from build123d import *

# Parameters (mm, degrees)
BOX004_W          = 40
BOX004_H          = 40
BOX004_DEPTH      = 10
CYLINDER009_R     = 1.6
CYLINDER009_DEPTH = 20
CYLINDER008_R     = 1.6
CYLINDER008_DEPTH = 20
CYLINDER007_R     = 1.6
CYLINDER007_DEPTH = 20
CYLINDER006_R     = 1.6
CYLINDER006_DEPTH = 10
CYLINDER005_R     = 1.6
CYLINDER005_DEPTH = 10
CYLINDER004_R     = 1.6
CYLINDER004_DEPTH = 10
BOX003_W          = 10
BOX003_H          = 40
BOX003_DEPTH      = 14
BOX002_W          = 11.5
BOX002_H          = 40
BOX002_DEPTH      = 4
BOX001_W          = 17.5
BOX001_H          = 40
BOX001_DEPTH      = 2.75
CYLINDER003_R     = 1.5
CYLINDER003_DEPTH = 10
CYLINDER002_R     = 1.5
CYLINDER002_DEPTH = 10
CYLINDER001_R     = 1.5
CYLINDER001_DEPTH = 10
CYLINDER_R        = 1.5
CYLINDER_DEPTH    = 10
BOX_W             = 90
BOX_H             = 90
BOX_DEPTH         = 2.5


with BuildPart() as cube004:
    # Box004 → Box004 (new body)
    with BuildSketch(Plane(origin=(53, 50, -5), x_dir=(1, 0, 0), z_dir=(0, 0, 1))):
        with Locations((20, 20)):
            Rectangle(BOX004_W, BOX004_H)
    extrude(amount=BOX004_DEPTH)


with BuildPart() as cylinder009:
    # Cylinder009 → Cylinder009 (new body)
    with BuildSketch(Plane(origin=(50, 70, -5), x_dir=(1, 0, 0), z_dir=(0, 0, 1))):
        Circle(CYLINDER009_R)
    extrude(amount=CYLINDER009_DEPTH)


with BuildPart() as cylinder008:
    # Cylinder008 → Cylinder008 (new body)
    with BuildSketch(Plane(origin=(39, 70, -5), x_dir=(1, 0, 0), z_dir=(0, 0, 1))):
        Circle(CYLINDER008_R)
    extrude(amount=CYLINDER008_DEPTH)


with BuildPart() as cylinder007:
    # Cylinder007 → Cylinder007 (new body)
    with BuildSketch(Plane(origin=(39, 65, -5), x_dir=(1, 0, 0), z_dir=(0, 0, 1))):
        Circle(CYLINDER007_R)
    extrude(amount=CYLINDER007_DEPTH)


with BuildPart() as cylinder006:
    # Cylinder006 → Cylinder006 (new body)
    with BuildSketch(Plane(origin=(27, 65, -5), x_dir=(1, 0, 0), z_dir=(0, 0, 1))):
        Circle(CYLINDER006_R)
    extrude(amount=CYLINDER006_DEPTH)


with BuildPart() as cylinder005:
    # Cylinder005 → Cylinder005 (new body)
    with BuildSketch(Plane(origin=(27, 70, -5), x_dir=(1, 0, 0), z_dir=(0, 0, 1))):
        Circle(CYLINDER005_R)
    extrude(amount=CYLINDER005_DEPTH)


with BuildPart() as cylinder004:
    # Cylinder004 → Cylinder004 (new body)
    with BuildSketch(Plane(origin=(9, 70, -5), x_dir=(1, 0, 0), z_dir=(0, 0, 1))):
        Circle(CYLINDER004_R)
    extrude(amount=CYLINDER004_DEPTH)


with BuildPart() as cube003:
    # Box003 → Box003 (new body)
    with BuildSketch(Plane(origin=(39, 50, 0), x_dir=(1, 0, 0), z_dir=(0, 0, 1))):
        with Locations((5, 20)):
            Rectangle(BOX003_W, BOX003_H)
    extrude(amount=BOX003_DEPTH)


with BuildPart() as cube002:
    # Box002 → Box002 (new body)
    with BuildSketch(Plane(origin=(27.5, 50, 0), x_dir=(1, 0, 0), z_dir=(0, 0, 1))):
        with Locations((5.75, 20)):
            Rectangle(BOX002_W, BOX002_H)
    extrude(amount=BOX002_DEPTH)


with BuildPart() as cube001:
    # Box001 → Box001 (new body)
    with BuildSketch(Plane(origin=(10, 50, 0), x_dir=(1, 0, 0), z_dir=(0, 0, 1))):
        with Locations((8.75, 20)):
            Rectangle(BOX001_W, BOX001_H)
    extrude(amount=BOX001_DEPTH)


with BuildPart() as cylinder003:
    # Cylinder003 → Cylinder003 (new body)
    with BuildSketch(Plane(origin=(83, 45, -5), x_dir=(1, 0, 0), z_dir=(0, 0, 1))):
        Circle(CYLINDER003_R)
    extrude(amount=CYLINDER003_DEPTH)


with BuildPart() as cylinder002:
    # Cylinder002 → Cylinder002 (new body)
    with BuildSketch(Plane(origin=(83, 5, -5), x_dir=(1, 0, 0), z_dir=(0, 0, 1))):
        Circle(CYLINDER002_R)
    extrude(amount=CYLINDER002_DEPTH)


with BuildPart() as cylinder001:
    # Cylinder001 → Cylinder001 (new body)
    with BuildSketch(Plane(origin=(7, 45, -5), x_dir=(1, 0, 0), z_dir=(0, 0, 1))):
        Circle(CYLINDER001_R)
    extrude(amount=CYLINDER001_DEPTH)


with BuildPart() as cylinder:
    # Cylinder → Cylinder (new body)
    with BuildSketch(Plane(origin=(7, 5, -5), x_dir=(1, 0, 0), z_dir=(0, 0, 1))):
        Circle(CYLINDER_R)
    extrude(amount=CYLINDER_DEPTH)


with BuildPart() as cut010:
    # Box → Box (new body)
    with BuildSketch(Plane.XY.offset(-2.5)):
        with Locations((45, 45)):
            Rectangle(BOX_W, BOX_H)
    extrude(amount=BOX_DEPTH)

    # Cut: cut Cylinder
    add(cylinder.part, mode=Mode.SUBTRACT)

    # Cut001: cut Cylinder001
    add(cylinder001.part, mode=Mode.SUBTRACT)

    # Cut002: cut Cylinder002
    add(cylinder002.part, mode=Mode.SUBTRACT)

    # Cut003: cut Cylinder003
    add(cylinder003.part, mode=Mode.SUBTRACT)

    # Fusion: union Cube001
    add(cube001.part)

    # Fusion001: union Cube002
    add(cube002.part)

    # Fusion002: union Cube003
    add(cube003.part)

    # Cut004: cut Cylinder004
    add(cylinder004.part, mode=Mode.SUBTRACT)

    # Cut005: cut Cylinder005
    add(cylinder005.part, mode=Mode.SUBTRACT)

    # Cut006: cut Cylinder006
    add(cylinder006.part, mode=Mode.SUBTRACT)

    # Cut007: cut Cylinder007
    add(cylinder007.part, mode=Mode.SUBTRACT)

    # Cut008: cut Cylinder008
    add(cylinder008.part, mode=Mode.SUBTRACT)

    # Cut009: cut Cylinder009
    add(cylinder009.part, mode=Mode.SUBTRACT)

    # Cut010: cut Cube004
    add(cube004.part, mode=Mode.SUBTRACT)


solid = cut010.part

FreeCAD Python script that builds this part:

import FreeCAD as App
import Part
import Sketcher

V = App.Vector
Q = App.Units.Quantity


def add_polygon(sketch, points):
    """Adds a closed chain of lines whose ends are joined by coincident constraints."""
    first, n = sketch.GeometryCount, len(points)
    for a, b in zip(points, points[1:] + points[:1]):
        sketch.addGeometry(Part.LineSegment(App.Vector(*a, 0), App.Vector(*b, 0)), False)
    for i in range(n):
        sketch.addConstraint(Sketcher.Constraint("Coincident", first + i, 2, first + (i + 1) % n, 1))

doc = App.newDocument("Part")
body = doc.addObject("PartDesign::Body", "Body")

# Sketch on XY plane
sketch1 = body.newObject("Sketcher::SketchObject", "Sketch")
sketch1.AttachmentSupport = (doc.getObject("XY_Plane"), [""])
sketch1.MapMode = "FlatFace"
sketch1.AttachmentOffset = App.Placement(V(0, 0, -5), App.Rotation())
add_polygon(sketch1, [(53, 90), (53, 50), (93, 50), (93, 90)])  # lines 0-3
sketch1.addConstraint([
    Sketcher.Constraint("Vertical", 0),
    Sketcher.Constraint("Horizontal", 1),
    Sketcher.Constraint("Vertical", 2),
    Sketcher.Constraint("Horizontal", 3),
    Sketcher.Constraint("Equal", 3, 0),
    Sketcher.Constraint("DistanceX", 1, 1, 1, 2, Q("40 mm")),
    Sketcher.Constraint("DistanceX", -1, 1, 0, 2, Q("53 mm")),
    Sketcher.Constraint("DistanceY", -1, 1, 0, 2, Q("50 mm")),
])
pad1 = body.newObject("PartDesign::Pad", "Pad")
pad1.Profile = sketch1
pad1.Length = 10
body2 = doc.addObject("PartDesign::Body", "Body001")

# Sketch on XY plane
sketch2 = body2.newObject("Sketcher::SketchObject", "Sketch001")
sketch2.AttachmentSupport = (doc.getObject("XY_Plane001"), [""])
sketch2.MapMode = "FlatFace"
sketch2.AttachmentOffset = App.Placement(V(0, 0, -5), App.Rotation())
sketch2.addGeometry(Part.Circle(V(50, 70, 0), V(0, 0, 1), 1.6), False)
sketch2.addConstraint([
    Sketcher.Constraint("Diameter", 0, Q("3.2 mm")),
    Sketcher.Constraint("DistanceX", -1, 1, 0, 3, Q("50 mm")),
    Sketcher.Constraint("DistanceY", -1, 1, 0, 3, Q("70 mm")),
])
pad2 = body2.newObject("PartDesign::Pad", "Pad001")
pad2.Profile = sketch2
pad2.Length = 20
body3 = doc.addObject("PartDesign::Body", "Body002")

# Sketch on XY plane
sketch3 = body3.newObject("Sketcher::SketchObject", "Sketch002")
sketch3.AttachmentSupport = (doc.getObject("XY_Plane002"), [""])
sketch3.MapMode = "FlatFace"
sketch3.AttachmentOffset = App.Placement(V(0, 0, -5), App.Rotation())
sketch3.addGeometry(Part.Circle(V(39, 70, 0), V(0, 0, 1), 1.6), False)
sketch3.addConstraint([
    Sketcher.Constraint("Diameter", 0, Q("3.2 mm")),
    Sketcher.Constraint("DistanceX", -1, 1, 0, 3, Q("39 mm")),
    Sketcher.Constraint("DistanceY", -1, 1, 0, 3, Q("70 mm")),
])
pad3 = body3.newObject("PartDesign::Pad", "Pad002")
pad3.Profile = sketch3
pad3.Length = 20
body4 = doc.addObject("PartDesign::Body", "Body003")

# Sketch on XY plane
sketch4 = body4.newObject("Sketcher::SketchObject", "Sketch003")
sketch4.AttachmentSupport = (doc.getObject("XY_Plane003"), [""])
sketch4.MapMode = "FlatFace"
sketch4.AttachmentOffset = App.Placement(V(0, 0, -5), App.Rotation())
sketch4.addGeometry(Part.Circle(V(39, 65, 0), V(0, 0, 1), 1.6), False)
sketch4.addConstraint([
    Sketcher.Constraint("Diameter", 0, Q("3.2 mm")),
    Sketcher.Constraint("DistanceX", -1, 1, 0, 3, Q("39 mm")),
    Sketcher.Constraint("DistanceY", -1, 1, 0, 3, Q("65 mm")),
])
pad4 = body4.newObject("PartDesign::Pad", "Pad003")
pad4.Profile = sketch4
pad4.Length = 20
body5 = doc.addObject("PartDesign::Body", "Body004")

# Sketch on XY plane
sketch5 = body5.newObject("Sketcher::SketchObject", "Sketch004")
sketch5.AttachmentSupport = (doc.getObject("XY_Plane004"), [""])
sketch5.MapMode = "FlatFace"
sketch5.AttachmentOffset = App.Placement(V(0, 0, -5), App.Rotation())
sketch5.addGeometry(Part.Circle(V(27, 65, 0), V(0, 0, 1), 1.6), False)
sketch5.addConstraint([
    Sketcher.Constraint("Diameter", 0, Q("3.2 mm")),
    Sketcher.Constraint("DistanceX", -1, 1, 0, 3, Q("27 mm")),
    Sketcher.Constraint("DistanceY", -1, 1, 0, 3, Q("65 mm")),
])
pad5 = body5.newObject("PartDesign::Pad", "Pad004")
pad5.Profile = sketch5
pad5.Length = 10
body6 = doc.addObject("PartDesign::Body", "Body005")

# Sketch on XY plane
sketch6 = body6.newObject("Sketcher::SketchObject", "Sketch005")
sketch6.AttachmentSupport = (doc.getObject("XY_Plane005"), [""])
sketch6.MapMode = "FlatFace"
sketch6.AttachmentOffset = App.Placement(V(0, 0, -5), App.Rotation())
sketch6.addGeometry(Part.Circle(V(27, 70, 0), V(0, 0, 1), 1.6), False)
sketch6.addConstraint([
    Sketcher.Constraint("Diameter", 0, Q("3.2 mm")),
    Sketcher.Constraint("DistanceX", -1, 1, 0, 3, Q("27 mm")),
    Sketcher.Constraint("DistanceY", -1, 1, 0, 3, Q("70 mm")),
])
pad6 = body6.newObject("PartDesign::Pad", "Pad005")
pad6.Profile = sketch6
pad6.Length = 10
body7 = doc.addObject("PartDesign::Body", "Body006")

# Sketch on XY plane
sketch7 = body7.newObject("Sketcher::SketchObject", "Sketch006")
sketch7.AttachmentSupport = (doc.getObject("XY_Plane006"), [""])
sketch7.MapMode = "FlatFace"
sketch7.AttachmentOffset = App.Placement(V(0, 0, -5), App.Rotation())
sketch7.addGeometry(Part.Circle(V(9, 70, 0), V(0, 0, 1), 1.6), False)
sketch7.addConstraint([
    Sketcher.Constraint("Diameter", 0, Q("3.2 mm")),
    Sketcher.Constraint("DistanceX", -1, 1, 0, 3, Q("9 mm")),
    Sketcher.Constraint("DistanceY", -1, 1, 0, 3, Q("70 mm")),
])
pad7 = body7.newObject("PartDesign::Pad", "Pad006")
pad7.Profile = sketch7
pad7.Length = 10
body8 = doc.addObject("PartDesign::Body", "Body007")

# Sketch on XY plane
sketch8 = body8.newObject("Sketcher::SketchObject", "Sketch007")
sketch8.AttachmentSupport = (doc.getObject("XY_Plane007"), [""])
sketch8.MapMode = "FlatFace"
add_polygon(sketch8, [(39, 90), (39, 50), (49, 50), (49, 90)])  # lines 0-3
sketch8.addConstraint([
    Sketcher.Constraint("Vertical", 0),
    Sketcher.Constraint("Horizontal", 1),
    Sketcher.Constraint("Vertical", 2),
    Sketcher.Constraint("Horizontal", 3),
    Sketcher.Constraint("DistanceX", 1, 1, 1, 2, Q("10 mm")),
    Sketcher.Constraint("DistanceY", 0, 2, 0, 1, Q("40 mm")),
    Sketcher.Constraint("DistanceX", -1, 1, 0, 2, Q("39 mm")),
    Sketcher.Constraint("DistanceY", -1, 1, 0, 2, Q("50 mm")),
])
pad8 = body8.newObject("PartDesign::Pad", "Pad007")
pad8.Profile = sketch8
pad8.Length = 14
body9 = doc.addObject("PartDesign::Body", "Body008")

# Sketch on XY plane
sketch9 = body9.newObject("Sketcher::SketchObject", "Sketch008")
sketch9.AttachmentSupport = (doc.getObject("XY_Plane008"), [""])
sketch9.MapMode = "FlatFace"
add_polygon(sketch9, [(27.5, 90), (27.5, 50), (39, 50), (39, 90)])  # lines 0-3
sketch9.addConstraint([
    Sketcher.Constraint("Vertical", 0),
    Sketcher.Constraint("Horizontal", 1),
    Sketcher.Constraint("Vertical", 2),
    Sketcher.Constraint("Horizontal", 3),
    Sketcher.Constraint("DistanceY", 0, 2, 0, 1, Q("40 mm")),
    Sketcher.Constraint("DistanceX", 1, 1, 1, 2, Q("11.5 mm")),
    Sketcher.Constraint("DistanceY", -1, 1, 0, 2, Q("50 mm")),
    Sketcher.Constraint("DistanceX", -1, 1, 1, 2, Q("39 mm")),
])
pad9 = body9.newObject("PartDesign::Pad", "Pad008")
pad9.Profile = sketch9
pad9.Length = 4
body10 = doc.addObject("PartDesign::Body", "Body009")

# Sketch on XY plane
sketch10 = body10.newObject("Sketcher::SketchObject", "Sketch009")
sketch10.AttachmentSupport = (doc.getObject("XY_Plane009"), [""])
sketch10.MapMode = "FlatFace"
add_polygon(sketch10, [(10, 90), (10, 50), (27.5, 50), (27.5, 90)])  # lines 0-3
sketch10.addConstraint([
    Sketcher.Constraint("Vertical", 0),
    Sketcher.Constraint("Horizontal", 1),
    Sketcher.Constraint("Vertical", 2),
    Sketcher.Constraint("Horizontal", 3),
    Sketcher.Constraint("DistanceY", 0, 2, 0, 1, Q("40 mm")),
    Sketcher.Constraint("DistanceX", 1, 1, 1, 2, Q("17.5 mm")),
    Sketcher.Constraint("DistanceX", -1, 1, 0, 2, Q("10 mm")),
    Sketcher.Constraint("DistanceY", -1, 1, 0, 2, Q("50 mm")),
])
pad10 = body10.newObject("PartDesign::Pad", "Pad009")
pad10.Profile = sketch10
pad10.Length = 2.75
body11 = doc.addObject("PartDesign::Body", "Body010")

# Sketch on XY plane
sketch11 = body11.newObject("Sketcher::SketchObject", "Sketch010")
sketch11.AttachmentSupport = (doc.getObject("XY_Plane010"), [""])
sketch11.MapMode = "FlatFace"
sketch11.AttachmentOffset = App.Placement(V(0, 0, -5), App.Rotation())
sketch11.addGeometry(Part.Circle(V(83, 45, 0), V(0, 0, 1), 1.5), False)
sketch11.addConstraint([
    Sketcher.Constraint("Diameter", 0, Q("3 mm")),
    Sketcher.Constraint("DistanceX", -1, 1, 0, 3, Q("83 mm")),
    Sketcher.Constraint("DistanceY", -1, 1, 0, 3, Q("45 mm")),
])
pad11 = body11.newObject("PartDesign::Pad", "Pad010")
pad11.Profile = sketch11
pad11.Length = 10
body12 = doc.addObject("PartDesign::Body", "Body011")

# Sketch on XY plane
sketch12 = body12.newObject("Sketcher::SketchObject", "Sketch011")
sketch12.AttachmentSupport = (doc.getObject("XY_Plane011"), [""])
sketch12.MapMode = "FlatFace"
sketch12.AttachmentOffset = App.Placement(V(0, 0, -5), App.Rotation())
sketch12.addGeometry(Part.Circle(V(83, 5, 0), V(0, 0, 1), 1.5), False)
sketch12.addConstraint([
    Sketcher.Constraint("Diameter", 0, Q("3 mm")),
    Sketcher.Constraint("DistanceX", -1, 1, 0, 3, Q("83 mm")),
    Sketcher.Constraint("DistanceY", -1, 1, 0, 3, Q("5 mm")),
])
pad12 = body12.newObject("PartDesign::Pad", "Pad011")
pad12.Profile = sketch12
pad12.Length = 10
body13 = doc.addObject("PartDesign::Body", "Body012")

# Sketch on XY plane
sketch13 = body13.newObject("Sketcher::SketchObject", "Sketch012")
sketch13.AttachmentSupport = (doc.getObject("XY_Plane012"), [""])
sketch13.MapMode = "FlatFace"
sketch13.AttachmentOffset = App.Placement(V(0, 0, -5), App.Rotation())
sketch13.addGeometry(Part.Circle(V(7, 45, 0), V(0, 0, 1), 1.5), False)
sketch13.addConstraint([
    Sketcher.Constraint("Diameter", 0, Q("3 mm")),
    Sketcher.Constraint("DistanceX", -1, 1, 0, 3, Q("7 mm")),
    Sketcher.Constraint("DistanceY", -1, 1, 0, 3, Q("45 mm")),
])
pad13 = body13.newObject("PartDesign::Pad", "Pad012")
pad13.Profile = sketch13
pad13.Length = 10
body14 = doc.addObject("PartDesign::Body", "Body013")

# Sketch on XY plane
sketch14 = body14.newObject("Sketcher::SketchObject", "Sketch013")
sketch14.AttachmentSupport = (doc.getObject("XY_Plane013"), [""])
sketch14.MapMode = "FlatFace"
sketch14.AttachmentOffset = App.Placement(V(0, 0, -5), App.Rotation())
sketch14.addGeometry(Part.Circle(V(7, 5, 0), V(0, 0, 1), 1.5), False)
sketch14.addConstraint([
    Sketcher.Constraint("Diameter", 0, Q("3 mm")),
    Sketcher.Constraint("DistanceX", -1, 1, 0, 3, Q("7 mm")),
    Sketcher.Constraint("DistanceY", -1, 1, 0, 3, Q("5 mm")),
])
pad14 = body14.newObject("PartDesign::Pad", "Pad013")
pad14.Profile = sketch14
pad14.Length = 10
body15 = doc.addObject("PartDesign::Body", "Body014")

# Sketch on XY plane
sketch15 = body15.newObject("Sketcher::SketchObject", "Sketch014")
sketch15.AttachmentSupport = (doc.getObject("XY_Plane014"), [""])
sketch15.MapMode = "FlatFace"
sketch15.AttachmentOffset = App.Placement(V(0, 0, -2.5), App.Rotation())
add_polygon(sketch15, [(0, 90), (0, 0), (90, 0), (90, 90)])  # lines 0-3
sketch15.addConstraint([
    Sketcher.Constraint("Vertical", 0),
    Sketcher.Constraint("Horizontal", 1),
    Sketcher.Constraint("Vertical", 2),
    Sketcher.Constraint("Horizontal", 3),
    Sketcher.Constraint("Coincident", 0, 2, -1, 1),
    Sketcher.Constraint("Equal", 3, 0),
    Sketcher.Constraint("DistanceX", 1, 1, 1, 2, Q("90 mm")),
])
pad15 = body15.newObject("PartDesign::Pad", "Pad014")
pad15.Profile = sketch15
pad15.Length = 2.5
doc.recompute()

boolean = body15.newObject("PartDesign::Boolean", "Boolean")
boolean.Type = "Cut"
boolean.addObjects([body14])
doc.recompute()

boolean2 = body15.newObject("PartDesign::Boolean", "Boolean001")
boolean2.Type = "Cut"
boolean2.addObjects([body13])
doc.recompute()

boolean3 = body15.newObject("PartDesign::Boolean", "Boolean002")
boolean3.Type = "Cut"
boolean3.addObjects([body12])
doc.recompute()

boolean4 = body15.newObject("PartDesign::Boolean", "Boolean003")
boolean4.Type = "Cut"
boolean4.addObjects([body11])
doc.recompute()

boolean5 = body15.newObject("PartDesign::Boolean", "Boolean004")
boolean5.Type = "Fuse"
boolean5.addObjects([body10])
doc.recompute()

boolean6 = body15.newObject("PartDesign::Boolean", "Boolean005")
boolean6.Type = "Fuse"
boolean6.addObjects([body9])
doc.recompute()

boolean7 = body15.newObject("PartDesign::Boolean", "Boolean006")
boolean7.Type = "Fuse"
boolean7.addObjects([body8])
doc.recompute()

boolean8 = body15.newObject("PartDesign::Boolean", "Boolean007")
boolean8.Type = "Cut"
boolean8.addObjects([body7])
doc.recompute()

boolean9 = body15.newObject("PartDesign::Boolean", "Boolean008")
boolean9.Type = "Cut"
boolean9.addObjects([body6])
doc.recompute()

boolean10 = body15.newObject("PartDesign::Boolean", "Boolean009")
boolean10.Type = "Cut"
boolean10.addObjects([body5])
doc.recompute()

boolean11 = body15.newObject("PartDesign::Boolean", "Boolean010")
boolean11.Type = "Cut"
boolean11.addObjects([body4])
doc.recompute()

boolean12 = body15.newObject("PartDesign::Boolean", "Boolean011")
boolean12.Type = "Cut"
boolean12.addObjects([body3])
doc.recompute()

boolean13 = body15.newObject("PartDesign::Boolean", "Boolean012")
boolean13.Type = "Cut"
boolean13.addObjects([body2])
doc.recompute()

boolean14 = body15.newObject("PartDesign::Boolean", "Boolean013")
boolean14.Type = "Cut"
boolean14.addObjects([body])

doc.recompute()
